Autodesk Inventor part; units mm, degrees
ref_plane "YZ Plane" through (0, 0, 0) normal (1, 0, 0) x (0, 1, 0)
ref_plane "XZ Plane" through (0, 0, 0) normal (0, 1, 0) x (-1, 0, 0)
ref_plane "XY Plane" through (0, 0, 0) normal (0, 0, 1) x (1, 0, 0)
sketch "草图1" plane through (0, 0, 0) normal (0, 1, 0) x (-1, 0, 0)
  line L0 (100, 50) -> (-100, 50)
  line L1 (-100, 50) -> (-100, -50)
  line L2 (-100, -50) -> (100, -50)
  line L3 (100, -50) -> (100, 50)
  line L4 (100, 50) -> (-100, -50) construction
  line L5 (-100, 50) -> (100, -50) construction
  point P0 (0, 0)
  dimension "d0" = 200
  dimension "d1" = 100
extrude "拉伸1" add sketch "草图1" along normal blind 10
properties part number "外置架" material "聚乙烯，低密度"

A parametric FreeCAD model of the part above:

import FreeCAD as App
import Part
import Sketcher
from FreeCAD import Vector

doc = App.newDocument("Part")
params = doc.addObject("Spreadsheet::Sheet", "Params")
for row, (alias, value) in enumerate([
    ("sketch1_width", "200 mm"),
    ("sketch1_height", "100 mm"),
    ("pad1_length", "10 mm"),
], start=1):
    params.set(f"A{row}", alias)
    params.set(f"B{row}", "=" + value)
    params.setAlias(f"B{row}", alias)

body = doc.addObject("PartDesign::Body", "Body")

sketch1 = body.newObject("Sketcher::SketchObject", "Sketch")
sketch1.AttachmentSupport = (doc.getObject("XZ_Plane"), [""])
sketch1.MapMode = "FlatFace"
sketch1.addGeometry([
    Part.LineSegment(Vector(-100, -50, 0), Vector(-100, 50, 0)),
    Part.LineSegment(Vector(-100, 50, 0), Vector(100, 50, 0)),
    Part.LineSegment(Vector(100, 50, 0), Vector(100, -50, 0)),
    Part.LineSegment(Vector(100, -50, 0), Vector(-100, -50, 0)),
], False)
sketch1.addConstraint([
    Sketcher.Constraint("Coincident", 0, 2, 1, 1),
    Sketcher.Constraint("Coincident", 1, 2, 2, 1),
    Sketcher.Constraint("Coincident", 2, 2, 3, 1),
    Sketcher.Constraint("Coincident", 3, 2, 0, 1),
    Sketcher.Constraint("Vertical", 0),
    Sketcher.Constraint("Horizontal", 1),
    Sketcher.Constraint("Vertical", 2),
    Sketcher.Constraint("Horizontal", 3),
    Sketcher.Constraint("Symmetric", 0, 2, 2, 2, -1, 1),
    Sketcher.Constraint("DistanceX", 1, 1, 1, 2, 200.0),
    Sketcher.Constraint("DistanceY", 0, 1, 0, 2, 100.0),
])
sketch1.setExpression("Constraints[9]", "Params.sketch1_width")
sketch1.setExpression("Constraints[10]", "Params.sketch1_height")
pad1 = body.newObject("PartDesign::Pad", "Pad")
pad1.Profile = sketch1
pad1.setExpression("Length", "Params.pad1_length")
pad1.Reversed = True

doc.recompute()
